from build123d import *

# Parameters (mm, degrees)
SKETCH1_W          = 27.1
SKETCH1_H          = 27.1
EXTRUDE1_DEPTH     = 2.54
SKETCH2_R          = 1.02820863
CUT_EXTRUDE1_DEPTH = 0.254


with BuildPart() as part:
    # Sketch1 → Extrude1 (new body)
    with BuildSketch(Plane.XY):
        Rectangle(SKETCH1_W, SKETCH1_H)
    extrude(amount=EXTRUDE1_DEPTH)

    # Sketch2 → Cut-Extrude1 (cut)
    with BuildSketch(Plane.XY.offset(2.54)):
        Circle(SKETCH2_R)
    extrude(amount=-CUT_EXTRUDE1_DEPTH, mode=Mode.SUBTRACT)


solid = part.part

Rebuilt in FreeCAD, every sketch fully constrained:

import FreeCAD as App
import Part
import Sketcher
from FreeCAD import Vector
Q = App.Units.Quantity


def add_polygon(sketch, points):
    """Adds a closed chain of lines whose ends are joined by coincident constraints."""
    first, n = sketch.GeometryCount, len(points)
    for a, b in zip(points, points[1:] + points[:1]):
        sketch.addGeometry(Part.LineSegment(App.Vector(*a, 0), App.Vector(*b, 0)), False)
    for i in range(n):
        sketch.addConstraint(Sketcher.Constraint("Coincident", first + i, 2, first + (i + 1) % n, 1))

doc = App.newDocument("Part")
params = doc.addObject("Spreadsheet::Sheet", "Params")
for row, (alias, value) in enumerate([
    ("pad1_length", "0.1 in"),
    ("pocket1_length", "0.01 in"),
], start=1):
    params.set(f"A{row}", alias)
    params.set(f"B{row}", "=" + value)
    params.setAlias(f"B{row}", alias)

body = doc.addObject("PartDesign::Body", "Body")

sketch1 = body.newObject("Sketcher::SketchObject", "Sketch")
sketch1.AttachmentSupport = (doc.getObject("XY_Plane"), [""])
sketch1.MapMode = "FlatFace"
add_polygon(sketch1, [(-13.55, 13.55), (-13.55, -13.55), (13.55, -13.55), (13.55, 13.55)])
sketch1.addConstraint(Sketcher.Constraint("Vertical", 0))
sketch1.addConstraint(Sketcher.Constraint("Horizontal", 1))
sketch1.addConstraint(Sketcher.Constraint("Vertical", 2))
sketch1.addConstraint(Sketcher.Constraint("Horizontal", 3))
sketch1.addConstraint(Sketcher.Constraint("Symmetric", 0, 2, 2, 2, -1, 1))
sketch1.addConstraint(Sketcher.Constraint("Equal", 3, 0))
sketch1.addConstraint(Sketcher.Constraint("DistanceX", 1, 1, 1, 2, Q("27.1 mm")))
pad1 = body.newObject("PartDesign::Pad", "Pad")
pad1.Profile = sketch1
pad1.setExpression("Length", "Params.pad1_length")

sketch2 = body.newObject("Sketcher::SketchObject", "Sketch001")
sketch2.AttachmentSupport = (doc.getObject("XY_Plane"), [""])
sketch2.MapMode = "FlatFace"
sketch2.AttachmentOffset = App.Placement(Vector(0, 0, 0.1 * 25.4), App.Rotation())
sketch2.addGeometry(Part.Circle(Vector(0, 0, 0), Vector(0, 0, 1), 1.028209), False)
sketch2.addConstraint(Sketcher.Constraint("Coincident", 0, 3, -1, 1))
sketch2.addConstraint(Sketcher.Constraint("Diameter", 0, Q("2.056417 mm")))
pocket1 = body.newObject("PartDesign::Pocket", "Pocket")
pocket1.Profile = sketch2
pocket1.setExpression("Length", "Params.pocket1_length")

doc.recompute()
